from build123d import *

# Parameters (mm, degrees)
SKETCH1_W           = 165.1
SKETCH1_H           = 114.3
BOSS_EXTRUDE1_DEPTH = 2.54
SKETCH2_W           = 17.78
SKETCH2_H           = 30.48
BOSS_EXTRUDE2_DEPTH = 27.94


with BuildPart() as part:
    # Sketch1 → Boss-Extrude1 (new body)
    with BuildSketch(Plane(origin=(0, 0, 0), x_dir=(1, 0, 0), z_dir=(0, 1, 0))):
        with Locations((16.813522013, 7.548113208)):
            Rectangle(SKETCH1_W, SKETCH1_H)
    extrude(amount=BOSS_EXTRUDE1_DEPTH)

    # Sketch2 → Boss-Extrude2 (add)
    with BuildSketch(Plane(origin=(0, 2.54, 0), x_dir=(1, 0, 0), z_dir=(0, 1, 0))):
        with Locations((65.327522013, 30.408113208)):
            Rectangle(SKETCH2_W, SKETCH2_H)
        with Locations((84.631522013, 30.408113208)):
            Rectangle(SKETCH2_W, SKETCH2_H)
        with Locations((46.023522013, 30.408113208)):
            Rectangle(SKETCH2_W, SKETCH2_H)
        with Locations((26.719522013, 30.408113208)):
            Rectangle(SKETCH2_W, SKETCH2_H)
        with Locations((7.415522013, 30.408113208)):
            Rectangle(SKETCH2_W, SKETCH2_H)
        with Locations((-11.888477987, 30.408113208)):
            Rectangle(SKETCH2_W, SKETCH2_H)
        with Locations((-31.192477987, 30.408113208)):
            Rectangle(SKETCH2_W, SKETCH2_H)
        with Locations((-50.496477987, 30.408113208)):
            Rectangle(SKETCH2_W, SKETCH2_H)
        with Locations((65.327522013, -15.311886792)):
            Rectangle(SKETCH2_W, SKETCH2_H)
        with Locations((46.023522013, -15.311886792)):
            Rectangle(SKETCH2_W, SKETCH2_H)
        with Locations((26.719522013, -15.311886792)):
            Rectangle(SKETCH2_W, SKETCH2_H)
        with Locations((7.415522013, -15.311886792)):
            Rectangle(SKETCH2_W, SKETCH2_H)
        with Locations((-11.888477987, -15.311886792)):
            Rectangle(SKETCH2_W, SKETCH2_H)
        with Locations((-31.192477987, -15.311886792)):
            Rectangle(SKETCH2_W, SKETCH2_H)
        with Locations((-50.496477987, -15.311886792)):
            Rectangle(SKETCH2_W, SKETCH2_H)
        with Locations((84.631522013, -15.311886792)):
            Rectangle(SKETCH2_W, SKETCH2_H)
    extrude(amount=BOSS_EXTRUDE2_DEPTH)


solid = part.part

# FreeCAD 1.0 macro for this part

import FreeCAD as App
import Part
import Sketcher
Q = App.Units.Quantity

doc = App.newDocument("Part")
body = doc.addObject("PartDesign::Body", "Body")

# Sketch on XZ plane
sketch1 = body.newObject("Sketcher::SketchObject", "Sketch")
sketch1.AttachmentSupport = (doc.getObject("XZ_Plane"), [""])
sketch1.MapMode = "FlatFace"
sketch1.addGeometry([
    Part.LineSegment(App.Vector(-65.736478, -64.698113, 0), App.Vector(-65.736478, 49.601887, 0)),
    Part.LineSegment(App.Vector(-65.736478, 49.601887, 0), App.Vector(99.363522, 49.601887, 0)),
    Part.LineSegment(App.Vector(99.363522, 49.601887, 0), App.Vector(99.363522, -64.698113, 0)),
    Part.LineSegment(App.Vector(99.363522, -64.698113, 0), App.Vector(-65.736478, -64.698113, 0)),
], False)
sketch1.addConstraint([
    Sketcher.Constraint("Coincident", 0, 2, 1, 1),
    Sketcher.Constraint("Coincident", 1, 2, 2, 1),
    Sketcher.Constraint("Coincident", 2, 2, 3, 1),
    Sketcher.Constraint("Coincident", 3, 2, 0, 1),
    Sketcher.Constraint("Vertical", 0),
    Sketcher.Constraint("Horizontal", 1),
    Sketcher.Constraint("Vertical", 2),
    Sketcher.Constraint("Horizontal", 3),
    Sketcher.Constraint("DistanceX", 1, 1, 1, 2, Q("6.5 in")),
    Sketcher.Constraint("DistanceY", 0, 1, 0, 2, Q("4.5 in")),
    Sketcher.Constraint("DistanceX", 0, 2, -1, 1, 65.736478),
    Sketcher.Constraint("DistanceY", -1, 1, 0, 2, 49.601887),
])
pad1 = body.newObject("PartDesign::Pad", "Pad")
pad1.Profile = sketch1
pad1.Length = Q("0.1 in")
pad1.Reversed = True

# Sketch on XZ plane
sketch2 = body.newObject("Sketcher::SketchObject", "Sketch001")
sketch2.AttachmentSupport = (doc.getObject("XZ_Plane"), [""])
sketch2.MapMode = "FlatFace"
sketch2.AttachmentOffset = App.Placement(App.Vector(0, 0, -0.1 * 25.4), App.Rotation())
sketch2.addGeometry([
    Part.LineSegment(App.Vector(56.437522, -45.648113, 0), App.Vector(56.437522, -15.168113, 0)),  # 0
    Part.LineSegment(App.Vector(56.437522, -15.168113, 0), App.Vector(74.217522, -15.168113, 0)),  # 1
    Part.LineSegment(App.Vector(74.217522, -15.168113, 0), App.Vector(74.217522, -45.648113, 0)),  # 2
    Part.LineSegment(App.Vector(74.217522, -45.648113, 0), App.Vector(56.437522, -45.648113, 0)),  # 3
    Part.LineSegment(App.Vector(75.741522, -45.648113, 0), App.Vector(75.741522, -15.168113, 0)),  # 4
    Part.LineSegment(App.Vector(75.741522, -15.168113, 0), App.Vector(93.521522, -15.168113, 0)),  # 5
    Part.LineSegment(App.Vector(93.521522, -15.168113, 0), App.Vector(93.521522, -45.648113, 0)),  # 6
    Part.LineSegment(App.Vector(93.521522, -45.648113, 0), App.Vector(75.741522, -45.648113, 0)),  # 7
    Part.LineSegment(App.Vector(37.133522, -45.648113, 0), App.Vector(37.133522, -15.168113, 0)),  # 8
    Part.LineSegment(App.Vector(37.133522, -15.168113, 0), App.Vector(54.913522, -15.168113, 0)),  # 9
    Part.LineSegment(App.Vector(54.913522, -15.168113, 0), App.Vector(54.913522, -45.648113, 0)),  # 10
    Part.LineSegment(App.Vector(54.913522, -45.648113, 0), App.Vector(37.133522, -45.648113, 0)),  # 11
    Part.LineSegment(App.Vector(17.829522, -45.648113, 0), App.Vector(17.829522, -15.168113, 0)),  # 12
    Part.LineSegment(App.Vector(17.829522, -15.168113, 0), App.Vector(35.609522, -15.168113, 0)),  # 13
    Part.LineSegment(App.Vector(35.609522, -15.168113, 0), App.Vector(35.609522, -45.648113, 0)),  # 14
    Part.LineSegment(App.Vector(35.609522, -45.648113, 0), App.Vector(17.829522, -45.648113, 0)),  # 15
    Part.LineSegment(App.Vector(-1.474478, -45.648113, 0), App.Vector(-1.474478, -15.168113, 0)),  # 16
    Part.LineSegment(App.Vector(-1.474478, -15.168113, 0), App.Vector(16.305522, -15.168113, 0)),  # 17
    Part.LineSegment(App.Vector(16.305522, -15.168113, 0), App.Vector(16.305522, -45.648113, 0)),  # 18
    Part.LineSegment(App.Vector(16.305522, -45.648113, 0), App.Vector(-1.474478, -45.648113, 0)),  # 19
    Part.LineSegment(App.Vector(-20.778478, -45.648113, 0), App.Vector(-20.778478, -15.168113, 0)),  # 20
    Part.LineSegment(App.Vector(-20.778478, -15.168113, 0), App.Vector(-2.998478, -15.168113, 0)),  # 21
    Part.LineSegment(App.Vector(-2.998478, -15.168113, 0), App.Vector(-2.998478, -45.648113, 0)),  # 22
    Part.LineSegment(App.Vector(-2.998478, -45.648113, 0), App.Vector(-20.778478, -45.648113, 0)),  # 23
    Part.LineSegment(App.Vector(-40.082478, -45.648113, 0), App.Vector(-40.082478, -15.168113, 0)),  # 24
    Part.LineSegment(App.Vector(-40.082478, -15.168113, 0), App.Vector(-22.302478, -15.168113, 0)),  # 25
    Part.LineSegment(App.Vector(-22.302478, -15.168113, 0), App.Vector(-22.302478, -45.648113, 0)),  # 26
    Part.LineSegment(App.Vector(-22.302478, -45.648113, 0), App.Vector(-40.082478, -45.648113, 0)),  # 27
    Part.LineSegment(App.Vector(-59.386478, -45.648113, 0), App.Vector(-59.386478, -15.168113, 0)),  # 28
    Part.LineSegment(App.Vector(-59.386478, -15.168113, 0), App.Vector(-41.606478, -15.168113, 0)),  # 29
    Part.LineSegment(App.Vector(-41.606478, -15.168113, 0), App.Vector(-41.606478, -45.648113, 0)),  # 30
    Part.LineSegment(App.Vector(-41.606478, -45.648113, 0), App.Vector(-59.386478, -45.648113, 0)),  # 31
    Part.LineSegment(App.Vector(56.437522, 0.071887, 0), App.Vector(56.437522, 30.551887, 0)),  # 32
    Part.LineSegment(App.Vector(56.437522, 30.551887, 0), App.Vector(74.217522, 30.551887, 0)),  # 33
    Part.LineSegment(App.Vector(74.217522, 30.551887, 0), App.Vector(74.217522, 0.071887, 0)),  # 34
    Part.LineSegment(App.Vector(74.217522, 0.071887, 0), App.Vector(56.437522, 0.071887, 0)),  # 35
    Part.LineSegment(App.Vector(37.133522, 0.071887, 0), App.Vector(37.133522, 30.551887, 0)),  # 36
    Part.LineSegment(App.Vector(37.133522, 30.551887, 0), App.Vector(54.913522, 30.551887, 0)),  # 37
    Part.LineSegment(App.Vector(54.913522, 30.551887, 0), App.Vector(54.913522, 0.071887, 0)),  # 38
    Part.LineSegment(App.Vector(54.913522, 0.071887, 0), App.Vector(37.133522, 0.071887, 0)),  # 39
    Part.LineSegment(App.Vector(17.829522, 0.071887, 0), App.Vector(17.829522, 30.551887, 0)),  # 40
    Part.LineSegment(App.Vector(17.829522, 30.551887, 0), App.Vector(35.609522, 30.551887, 0)),  # 41
    Part.LineSegment(App.Vector(35.609522, 30.551887, 0), App.Vector(35.609522, 0.071887, 0)),  # 42
    Part.LineSegment(App.Vector(35.609522, 0.071887, 0), App.Vector(17.829522, 0.071887, 0)),  # 43
    Part.LineSegment(App.Vector(-1.474478, 0.071887, 0), App.Vector(-1.474478, 30.551887, 0)),  # 44
    Part.LineSegment(App.Vector(-1.474478, 30.551887, 0), App.Vector(16.305522, 30.551887, 0)),  # 45
    Part.LineSegment(App.Vector(16.305522, 30.551887, 0), App.Vector(16.305522, 0.071887, 0)),  # 46
    Part.LineSegment(App.Vector(16.305522, 0.071887, 0), App.Vector(-1.474478, 0.071887, 0)),  # 47
    Part.LineSegment(App.Vector(-20.778478, 0.071887, 0), App.Vector(-20.778478, 30.551887, 0)),  # 48
    Part.LineSegment(App.Vector(-20.778478, 30.551887, 0), App.Vector(-2.998478, 30.551887, 0)),  # 49
    Part.LineSegment(App.Vector(-2.998478, 30.551887, 0), App.Vector(-2.998478, 0.071887, 0)),  # 50
    Part.LineSegment(App.Vector(-2.998478, 0.071887, 0), App.Vector(-20.778478, 0.071887, 0)),  # 51
    Part.LineSegment(App.Vector(-40.082478, 0.071887, 0), App.Vector(-40.082478, 30.551887, 0)),  # 52
    Part.LineSegment(App.Vector(-40.082478, 30.551887, 0), App.Vector(-22.302478, 30.551887, 0)),  # 53
    Part.LineSegment(App.Vector(-22.302478, 30.551887, 0), App.Vector(-22.302478, 0.071887, 0)),  # 54
    Part.LineSegment(App.Vector(-22.302478, 0.071887, 0), App.Vector(-40.082478, 0.071887, 0)),  # 55
    Part.LineSegment(App.Vector(-59.386478, 0.071887, 0), App.Vector(-59.386478, 30.551887, 0)),  # 56
    Part.LineSegment(App.Vector(-59.386478, 30.551887, 0), App.Vector(-41.606478, 30.551887, 0)),  # 57
    Part.LineSegment(App.Vector(-41.606478, 30.551887, 0), App.Vector(-41.606478, 0.071887, 0)),  # 58
    Part.LineSegment(App.Vector(-41.606478, 0.071887, 0), App.Vector(-59.386478, 0.071887, 0)),  # 59
    Part.LineSegment(App.Vector(75.741522, 0.071887, 0), App.Vector(75.741522, 30.551887, 0)),  # 60
    Part.LineSegment(App.Vector(75.741522, 30.551887, 0), App.Vector(93.521522, 30.551887, 0)),  # 61
    Part.LineSegment(App.Vector(93.521522, 30.551887, 0), App.Vector(93.521522, 0.071887, 0)),  # 62
    Part.LineSegment(App.Vector(93.521522, 0.071887, 0), App.Vector(75.741522, 0.071887, 0)),  # 63
], False)
sketch2.addConstraint([
    Sketcher.Constraint("Coincident", 0, 2, 1, 1),
    Sketcher.Constraint("Coincident", 1, 2, 2, 1),
    Sketcher.Constraint("Coincident", 2, 2, 3, 1),
    Sketcher.Constraint("Coincident", 3, 2, 0, 1),
    Sketcher.Constraint("Coincident", 4, 2, 5, 1),
    Sketcher.Constraint("Coincident", 5, 2, 6, 1),
    Sketcher.Constraint("Coincident", 6, 2, 7, 1),
    Sketcher.Constraint("Coincident", 7, 2, 4, 1),
    Sketcher.Constraint("Coincident", 8, 2, 9, 1),
    Sketcher.Constraint("Coincident", 9, 2, 10, 1),
    Sketcher.Constraint("Coincident", 10, 2, 11, 1),
    Sketcher.Constraint("Coincident", 11, 2, 8, 1),
    Sketcher.Constraint("Coincident", 12, 2, 13, 1),
    Sketcher.Constraint("Coincident", 13, 2, 14, 1),
    Sketcher.Constraint("Coincident", 14, 2, 15, 1),
    Sketcher.Constraint("Coincident", 15, 2, 12, 1),
    Sketcher.Constraint("Coincident", 16, 2, 17, 1),
    Sketcher.Constraint("Coincident", 17, 2, 18, 1),
    Sketcher.Constraint("Coincident", 18, 2, 19, 1),
    Sketcher.Constraint("Coincident", 19, 2, 16, 1),
    Sketcher.Constraint("Coincident", 20, 2, 21, 1),
    Sketcher.Constraint("Coincident", 21, 2, 22, 1),
    Sketcher.Constraint("Coincident", 22, 2, 23, 1),
    Sketcher.Constraint("Coincident", 23, 2, 20, 1),
    Sketcher.Constraint("Coincident", 24, 2, 25, 1),
    Sketcher.Constraint("Coincident", 25, 2, 26, 1),
    Sketcher.Constraint("Coincident", 26, 2, 27, 1),
    Sketcher.Constraint("Coincident", 27, 2, 24, 1),
    Sketcher.Constraint("Coincident", 28, 2, 29, 1),
    Sketcher.Constraint("Coincident", 29, 2, 30, 1),
    Sketcher.Constraint("Coincident", 30, 2, 31, 1),
    Sketcher.Constraint("Coincident", 31, 2, 28, 1),
    Sketcher.Constraint("Coincident", 32, 2, 33, 1),
    Sketcher.Constraint("Coincident", 33, 2, 34, 1),
    Sketcher.Constraint("Coincident", 34, 2, 35, 1),
    Sketcher.Constraint("Coincident", 35, 2, 32, 1),
    Sketcher.Constraint("Coincident", 36, 2, 37, 1),
    Sketcher.Constraint("Coincident", 37, 2, 38, 1),
    Sketcher.Constraint("Coincident", 38, 2, 39, 1),
    Sketcher.Constraint("Coincident", 39, 2, 36, 1),
    Sketcher.Constraint("Coincident", 40, 2, 41, 1),
    Sketcher.Constraint("Coincident", 41, 2, 42, 1),
    Sketcher.Constraint("Coincident", 42, 2, 43, 1),
    Sketcher.Constraint("Coincident", 43, 2, 40, 1),
    Sketcher.Constraint("Coincident", 44, 2, 45, 1),
    Sketcher.Constraint("Coincident", 45, 2, 46, 1),
    Sketcher.Constraint("Coincident", 46, 2, 47, 1),
    Sketcher.Constraint("Coincident", 47, 2, 44, 1),
    Sketcher.Constraint("Coincident", 48, 2, 49, 1),
    Sketcher.Constraint("Coincident", 49, 2, 50, 1),
    Sketcher.Constraint("Coincident", 50, 2, 51, 1),
    Sketcher.Constraint("Coincident", 51, 2, 48, 1),
    Sketcher.Constraint("Coincident", 52, 2, 53, 1),
    Sketcher.Constraint("Coincident", 53, 2, 54, 1),
    Sketcher.Constraint("Coincident", 54, 2, 55, 1),
    Sketcher.Constraint("Coincident", 55, 2, 52, 1),
    Sketcher.Constraint("Coincident", 56, 2, 57, 1),
    Sketcher.Constraint("Coincident", 57, 2, 58, 1),
    Sketcher.Constraint("Coincident", 58, 2, 59, 1),
    Sketcher.Constraint("Coincident", 59, 2, 56, 1),
    Sketcher.Constraint("Coincident", 60, 2, 61, 1),
    Sketcher.Constraint("Coincident", 61, 2, 62, 1),
    Sketcher.Constraint("Coincident", 62, 2, 63, 1),
    Sketcher.Constraint("Coincident", 63, 2, 60, 1),
    Sketcher.Constraint("Vertical", 0),
    Sketcher.Constraint("Horizontal", 1),
    Sketcher.Constraint("Vertical", 2),
    Sketcher.Constraint("Horizontal", 3),
    Sketcher.Constraint("Vertical", 4),
    Sketcher.Constraint("Horizontal", 5),
    Sketcher.Constraint("Vertical", 6),
    Sketcher.Constraint("Horizontal", 7),
    Sketcher.Constraint("Vertical", 8),
    Sketcher.Constraint("Horizontal", 9),
    Sketcher.Constraint("Vertical", 10),
    Sketcher.Constraint("Horizontal", 11),
    Sketcher.Constraint("Vertical", 12),
    Sketcher.Constraint("Horizontal", 13),
    Sketcher.Constraint("Vertical", 14),
    Sketcher.Constraint("Horizontal", 15),
    Sketcher.Constraint("Vertical", 16),
    Sketcher.Constraint("Horizontal", 17),
    Sketcher.Constraint("Vertical", 18),
    Sketcher.Constraint("Horizontal", 19),
    Sketcher.Constraint("Vertical", 20),
    Sketcher.Constraint("Horizontal", 21),
    Sketcher.Constraint("Vertical", 22),
    Sketcher.Constraint("Horizontal", 23),
    Sketcher.Constraint("Vertical", 24),
    Sketcher.Constraint("Horizontal", 25),
    Sketcher.Constraint("Vertical", 26),
    Sketcher.Constraint("Horizontal", 27),
    Sketcher.Constraint("Vertical", 28),
    Sketcher.Constraint("Horizontal", 29),
    Sketcher.Constraint("Vertical", 30),
    Sketcher.Constraint("Horizontal", 31),
    Sketcher.Constraint("Vertical", 32),
    Sketcher.Constraint("Horizontal", 33),
    Sketcher.Constraint("Vertical", 34),
    Sketcher.Constraint("Horizontal", 35),
    Sketcher.Constraint("Vertical", 36),
    Sketcher.Constraint("Horizontal", 37),
    Sketcher.Constraint("Vertical", 38),
    Sketcher.Constraint("Horizontal", 39),
    Sketcher.Constraint("Vertical", 40),
    Sketcher.Constraint("Horizontal", 41),
    Sketcher.Constraint("Vertical", 42),
    Sketcher.Constraint("Horizontal", 43),
    Sketcher.Constraint("Vertical", 44),
    Sketcher.Constraint("Horizontal", 45),
    Sketcher.Constraint("Vertical", 46),
    Sketcher.Constraint("Horizontal", 47),
    Sketcher.Constraint("Vertical", 48),
    Sketcher.Constraint("Horizontal", 49),
    Sketcher.Constraint("Vertical", 50),
    Sketcher.Constraint("Horizontal", 51),
    Sketcher.Constraint("Vertical", 52),
    Sketcher.Constraint("Horizontal", 53),
    Sketcher.Constraint("Vertical", 54),
    Sketcher.Constraint("Horizontal", 55),
    Sketcher.Constraint("Vertical", 56),
    Sketcher.Constraint("Horizontal", 57),
    Sketcher.Constraint("Vertical", 58),
    Sketcher.Constraint("Horizontal", 59),
    Sketcher.Constraint("Vertical", 60),
    Sketcher.Constraint("Horizontal", 61),
    Sketcher.Constraint("Vertical", 62),
    Sketcher.Constraint("Horizontal", 63),
    Sketcher.Constraint("Horizontal", 1, 2, 4, 2),
    Sketcher.Constraint("Horizontal", 3, 2, 6, 2),
    Sketcher.Constraint("Horizontal", 5, 2, 8, 2),
    Sketcher.Constraint("Horizontal", 7, 2, 10, 2),
    Sketcher.Constraint("Horizontal", 9, 2, 12, 2),
    Sketcher.Constraint("Horizontal", 11, 2, 14, 2),
    Sketcher.Constraint("Horizontal", 13, 2, 16, 2),
    Sketcher.Constraint("Horizontal", 15, 2, 18, 2),
    Sketcher.Constraint("Horizontal", 17, 2, 20, 2),
    Sketcher.Constraint("Horizontal", 19, 2, 22, 2),
    Sketcher.Constraint("Horizontal", 21, 2, 24, 2),
    Sketcher.Constraint("Horizontal", 23, 2, 26, 2),
    Sketcher.Constraint("Horizontal", 25, 2, 28, 2),
    Sketcher.Constraint("Horizontal", 27, 2, 30, 2),
    Sketcher.Constraint("Horizontal", 33, 2, 36, 2),
    Sketcher.Constraint("Horizontal", 35, 2, 38, 2),
    Sketcher.Constraint("Horizontal", 37, 2, 40, 2),
    Sketcher.Constraint("Horizontal", 39, 2, 42, 2),
    Sketcher.Constraint("Horizontal", 41, 2, 44, 2),
    Sketcher.Constraint("Horizontal", 43, 2, 46, 2),
    Sketcher.Constraint("Horizontal", 45, 2, 48, 2),
    Sketcher.Constraint("Horizontal", 47, 2, 50, 2),
    Sketcher.Constraint("Horizontal", 49, 2, 52, 2),
    Sketcher.Constraint("Horizontal", 51, 2, 54, 2),
    Sketcher.Constraint("Horizontal", 53, 2, 56, 2),
    Sketcher.Constraint("Horizontal", 55, 2, 58, 2),
    Sketcher.Constraint("Horizontal", 57, 2, 60, 2),
    Sketcher.Constraint("Horizontal", 59, 2, 62, 2),
    Sketcher.Constraint("Vertical", 3, 2, 32, 2),
    Sketcher.Constraint("Vertical", 2, 2, 33, 2),
    Sketcher.Constraint("Vertical", 11, 2, 36, 2),
    Sketcher.Constraint("Vertical", 10, 2, 37, 2),
    Sketcher.Constraint("Vertical", 15, 2, 40, 2),
    Sketcher.Constraint("Vertical", 14, 2, 41, 2),
    Sketcher.Constraint("Vertical", 19, 2, 44, 2),
    Sketcher.Constraint("Vertical", 18, 2, 45, 2),
    Sketcher.Constraint("Vertical", 23, 2, 48, 2),
    Sketcher.Constraint("Vertical", 22, 2, 49, 2),
    Sketcher.Constraint("Vertical", 27, 2, 52, 2),
    Sketcher.Constraint("Vertical", 26, 2, 53, 2),
    Sketcher.Constraint("Vertical", 31, 2, 56, 2),
    Sketcher.Constraint("Vertical", 30, 2, 57, 2),
    Sketcher.Constraint("Vertical", 7, 2, 60, 2),
    Sketcher.Constraint("Vertical", 6, 2, 61, 2),
    Sketcher.Constraint("Equal", 3, 5),
    Sketcher.Constraint("Equal", 7, 9),
    Sketcher.Constraint("Equal", 11, 13),
    Sketcher.Constraint("Equal", 15, 17),
    Sketcher.Constraint("Equal", 19, 21),
    Sketcher.Constraint("Equal", 23, 25),
    Sketcher.Constraint("Equal", 27, 29),
    Sketcher.Constraint("Equal", 30, 32),
    Sketcher.Constraint("DistanceX", 1, 1, 1, 2, Q("0.7 in")),
    Sketcher.Constraint("DistanceY", 0, 1, 0, 2, Q("1.2 in")),
    Sketcher.Constraint("DistanceX", -1, 1, 0, 2, 56.437522),
    Sketcher.Constraint("DistanceY", 0, 2, -1, 1, 15.168113),
    Sketcher.Constraint("DistanceX", -1, 1, 4, 2, 75.741522),
    Sketcher.Constraint("DistanceX", -1, 1, 8, 2, 37.133522),
    Sketcher.Constraint("DistanceX", -1, 1, 12, 2, 17.829522),
    Sketcher.Constraint("DistanceX", 16, 2, -1, 1, 1.474478),
    Sketcher.Constraint("DistanceX", 20, 2, -1, 1, 20.778478),
    Sketcher.Constraint("DistanceX", 24, 2, -1, 1, 40.082478),
    Sketcher.Constraint("DistanceX", 28, 2, -1, 1, 59.386478),
    Sketcher.Constraint("DistanceY", -1, 1, 32, 2, 30.551887),
])
pad2 = body.newObject("PartDesign::Pad", "Pad001")
pad2.Profile = sketch2
pad2.Length = Q("1.1 in")
pad2.Reversed = True

doc.recompute()
